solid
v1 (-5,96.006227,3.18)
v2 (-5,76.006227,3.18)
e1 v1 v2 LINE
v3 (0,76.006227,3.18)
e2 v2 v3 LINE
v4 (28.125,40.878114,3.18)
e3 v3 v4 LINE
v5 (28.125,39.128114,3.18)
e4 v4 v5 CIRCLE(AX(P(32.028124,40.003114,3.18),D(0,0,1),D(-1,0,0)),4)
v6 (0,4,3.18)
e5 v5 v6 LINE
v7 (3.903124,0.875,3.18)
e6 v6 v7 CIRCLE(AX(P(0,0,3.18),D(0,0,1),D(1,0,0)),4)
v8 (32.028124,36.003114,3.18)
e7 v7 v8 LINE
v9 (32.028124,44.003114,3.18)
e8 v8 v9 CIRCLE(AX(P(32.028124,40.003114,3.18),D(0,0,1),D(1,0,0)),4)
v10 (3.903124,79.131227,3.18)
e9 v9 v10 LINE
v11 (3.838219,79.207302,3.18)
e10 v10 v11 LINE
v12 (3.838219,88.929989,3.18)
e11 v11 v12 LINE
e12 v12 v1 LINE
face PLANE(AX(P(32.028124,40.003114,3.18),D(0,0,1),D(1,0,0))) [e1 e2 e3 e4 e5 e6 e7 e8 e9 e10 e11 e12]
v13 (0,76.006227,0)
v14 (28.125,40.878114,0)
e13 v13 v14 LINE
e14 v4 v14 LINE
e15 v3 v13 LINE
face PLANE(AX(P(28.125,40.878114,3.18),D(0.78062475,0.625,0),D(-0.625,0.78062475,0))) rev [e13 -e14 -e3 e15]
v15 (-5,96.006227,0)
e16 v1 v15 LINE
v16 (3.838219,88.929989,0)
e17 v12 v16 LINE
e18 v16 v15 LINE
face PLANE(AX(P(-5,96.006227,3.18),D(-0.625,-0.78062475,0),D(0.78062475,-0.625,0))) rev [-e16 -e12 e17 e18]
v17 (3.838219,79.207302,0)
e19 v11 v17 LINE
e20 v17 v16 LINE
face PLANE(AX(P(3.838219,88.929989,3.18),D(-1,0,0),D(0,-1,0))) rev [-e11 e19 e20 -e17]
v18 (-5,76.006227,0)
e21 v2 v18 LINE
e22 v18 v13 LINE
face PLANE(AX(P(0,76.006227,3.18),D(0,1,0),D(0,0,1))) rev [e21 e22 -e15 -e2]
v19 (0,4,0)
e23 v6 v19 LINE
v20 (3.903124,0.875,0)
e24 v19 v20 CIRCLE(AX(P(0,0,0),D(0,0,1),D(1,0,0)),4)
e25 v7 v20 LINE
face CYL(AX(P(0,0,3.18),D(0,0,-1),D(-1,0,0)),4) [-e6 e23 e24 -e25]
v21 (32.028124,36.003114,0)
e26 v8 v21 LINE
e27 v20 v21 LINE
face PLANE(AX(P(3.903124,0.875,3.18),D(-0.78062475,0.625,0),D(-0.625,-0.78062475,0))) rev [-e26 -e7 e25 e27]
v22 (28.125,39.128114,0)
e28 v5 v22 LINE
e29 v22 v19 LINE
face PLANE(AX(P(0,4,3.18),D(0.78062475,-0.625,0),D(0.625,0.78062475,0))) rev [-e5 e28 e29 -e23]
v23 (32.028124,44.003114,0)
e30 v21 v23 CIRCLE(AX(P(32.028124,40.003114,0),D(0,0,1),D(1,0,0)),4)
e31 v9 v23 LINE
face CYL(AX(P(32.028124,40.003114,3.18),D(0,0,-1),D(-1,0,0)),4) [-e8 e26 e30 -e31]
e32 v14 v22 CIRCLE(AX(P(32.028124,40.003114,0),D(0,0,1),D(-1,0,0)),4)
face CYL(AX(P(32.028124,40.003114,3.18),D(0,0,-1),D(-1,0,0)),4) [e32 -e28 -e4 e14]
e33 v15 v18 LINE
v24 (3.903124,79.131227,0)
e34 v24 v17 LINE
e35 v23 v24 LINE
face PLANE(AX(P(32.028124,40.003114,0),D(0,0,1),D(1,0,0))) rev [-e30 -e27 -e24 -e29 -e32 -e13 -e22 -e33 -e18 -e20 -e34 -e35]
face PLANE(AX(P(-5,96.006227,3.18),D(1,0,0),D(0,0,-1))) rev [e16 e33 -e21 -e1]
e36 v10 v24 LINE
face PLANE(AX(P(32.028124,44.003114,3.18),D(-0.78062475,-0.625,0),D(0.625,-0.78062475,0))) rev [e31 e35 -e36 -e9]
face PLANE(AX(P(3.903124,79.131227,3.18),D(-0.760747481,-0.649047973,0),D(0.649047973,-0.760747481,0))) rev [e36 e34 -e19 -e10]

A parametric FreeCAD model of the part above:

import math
import FreeCAD as App
import Part
import Sketcher
from FreeCAD import Vector

doc = App.newDocument("Part")
body = doc.addObject("PartDesign::Body", "Body")

sketch1 = body.newObject("Sketcher::SketchObject", "Sketch")
sketch1.AttachmentSupport = (doc.getObject("XY_Plane"), [""])
sketch1.MapMode = "FlatFace"
sketch1.addGeometry([
    Part.LineSegment(Vector(28.125, 39.128114, 0), Vector(0, 4, 0)),
    Part.ArcOfCircle(Part.Circle(Vector(0, 0, 0), Vector(0, 0, 1), 4), math.radians(90), math.radians(372.635625)),
    Part.LineSegment(Vector(3.903124, 0.875, 0), Vector(32.028124, 36.003114, 0)),
    Part.ArcOfCircle(Part.Circle(Vector(32.028124, 40.003114, 0), Vector(0, 0, 1), 4), math.radians(-90), math.radians(90)),
    Part.LineSegment(Vector(32.028124, 44.003114, 0), Vector(3.903124, 79.131227, 0)),
    Part.LineSegment(Vector(3.903124, 79.131227, 0), Vector(3.838219, 79.207302, 0)),
    Part.LineSegment(Vector(3.838219, 79.207302, 0), Vector(3.838219, 88.929989, 0)),
    Part.LineSegment(Vector(3.838219, 88.929989, 0), Vector(-5, 96.006227, 0)),
    Part.LineSegment(Vector(-5, 96.006227, 0), Vector(-5, 76.006227, 0)),
    Part.LineSegment(Vector(-5, 76.006227, 0), Vector(0, 76.006227, 0)),
    Part.LineSegment(Vector(0, 76.006227, 0), Vector(28.125, 40.878114, 0)),
    Part.ArcOfCircle(Part.Circle(Vector(32.028124, 40.003114, 0), Vector(0, 0, 1), 4), math.radians(167.364375), math.radians(192.635625)),
], False)
sketch1.addConstraint([
    Sketcher.Constraint("Coincident", 0, 2, 1, 1),
    Sketcher.Constraint("Coincident", 1, 2, 2, 1),
    Sketcher.Constraint("Coincident", 2, 2, 3, 1),
    Sketcher.Constraint("Coincident", 3, 2, 4, 1),
    Sketcher.Constraint("Coincident", 4, 2, 5, 1),
    Sketcher.Constraint("Coincident", 5, 2, 6, 1),
    Sketcher.Constraint("Coincident", 6, 2, 7, 1),
    Sketcher.Constraint("Coincident", 7, 2, 8, 1),
    Sketcher.Constraint("Coincident", 8, 2, 9, 1),
    Sketcher.Constraint("Coincident", 9, 2, 10, 1),
    Sketcher.Constraint("Coincident", 10, 2, 11, 1),
    Sketcher.Constraint("Coincident", 11, 2, 0, 1),
    Sketcher.Constraint("Vertical", 6),
    Sketcher.Constraint("Vertical", 8),
    Sketcher.Constraint("Horizontal", 9),
    Sketcher.Constraint("Coincident", 1, 3, -1, 1),
    Sketcher.Constraint("Coincident", 11, 3, 3, 3),
    Sketcher.Constraint("Equal", 1, 3),
    Sketcher.Constraint("Equal", 3, 11),
    Sketcher.Constraint("PointOnObject", 0, 2, -2),
    Sketcher.Constraint("PointOnObject", 9, 2, -2),
    Sketcher.Constraint("Parallel", 0, 2),
    Sketcher.Constraint("Perpendicular", 2, 7),
    Sketcher.Constraint("Parallel", 4, 10),
    Sketcher.Constraint("Vertical", 11, 3, 2, 2),
    Sketcher.Constraint("Vertical", 2, 2, 3, 2),
    Sketcher.Constraint("Vertical", 1, 2, 4, 2),
    Sketcher.Constraint("Vertical", 10, 2, 11, 2),
    Sketcher.Constraint("Equal", 2, 4),
    Sketcher.Constraint("Radius", 1, 4.0),
    Sketcher.Constraint("DistanceX", 9, 1, 9, 2, 5.0),
    Sketcher.Constraint("DistanceY", 8, 2, 8, 1, 20.0),
    Sketcher.Constraint("Distance", 0, 45.0),
    Sketcher.Constraint("Distance", 5, 0.1),
    Sketcher.Constraint("DistanceY", 11, 2, 10, 2, 1.75),
    Sketcher.Constraint("DistanceX", -1, 1, 10, 2, 28.125),
    Sketcher.Constraint("Distance", 7, 11.321981),
])
pad1 = body.newObject("PartDesign::Pad", "Pad")
pad1.Profile = sketch1
pad1.Length = 3.18

doc.recompute()
